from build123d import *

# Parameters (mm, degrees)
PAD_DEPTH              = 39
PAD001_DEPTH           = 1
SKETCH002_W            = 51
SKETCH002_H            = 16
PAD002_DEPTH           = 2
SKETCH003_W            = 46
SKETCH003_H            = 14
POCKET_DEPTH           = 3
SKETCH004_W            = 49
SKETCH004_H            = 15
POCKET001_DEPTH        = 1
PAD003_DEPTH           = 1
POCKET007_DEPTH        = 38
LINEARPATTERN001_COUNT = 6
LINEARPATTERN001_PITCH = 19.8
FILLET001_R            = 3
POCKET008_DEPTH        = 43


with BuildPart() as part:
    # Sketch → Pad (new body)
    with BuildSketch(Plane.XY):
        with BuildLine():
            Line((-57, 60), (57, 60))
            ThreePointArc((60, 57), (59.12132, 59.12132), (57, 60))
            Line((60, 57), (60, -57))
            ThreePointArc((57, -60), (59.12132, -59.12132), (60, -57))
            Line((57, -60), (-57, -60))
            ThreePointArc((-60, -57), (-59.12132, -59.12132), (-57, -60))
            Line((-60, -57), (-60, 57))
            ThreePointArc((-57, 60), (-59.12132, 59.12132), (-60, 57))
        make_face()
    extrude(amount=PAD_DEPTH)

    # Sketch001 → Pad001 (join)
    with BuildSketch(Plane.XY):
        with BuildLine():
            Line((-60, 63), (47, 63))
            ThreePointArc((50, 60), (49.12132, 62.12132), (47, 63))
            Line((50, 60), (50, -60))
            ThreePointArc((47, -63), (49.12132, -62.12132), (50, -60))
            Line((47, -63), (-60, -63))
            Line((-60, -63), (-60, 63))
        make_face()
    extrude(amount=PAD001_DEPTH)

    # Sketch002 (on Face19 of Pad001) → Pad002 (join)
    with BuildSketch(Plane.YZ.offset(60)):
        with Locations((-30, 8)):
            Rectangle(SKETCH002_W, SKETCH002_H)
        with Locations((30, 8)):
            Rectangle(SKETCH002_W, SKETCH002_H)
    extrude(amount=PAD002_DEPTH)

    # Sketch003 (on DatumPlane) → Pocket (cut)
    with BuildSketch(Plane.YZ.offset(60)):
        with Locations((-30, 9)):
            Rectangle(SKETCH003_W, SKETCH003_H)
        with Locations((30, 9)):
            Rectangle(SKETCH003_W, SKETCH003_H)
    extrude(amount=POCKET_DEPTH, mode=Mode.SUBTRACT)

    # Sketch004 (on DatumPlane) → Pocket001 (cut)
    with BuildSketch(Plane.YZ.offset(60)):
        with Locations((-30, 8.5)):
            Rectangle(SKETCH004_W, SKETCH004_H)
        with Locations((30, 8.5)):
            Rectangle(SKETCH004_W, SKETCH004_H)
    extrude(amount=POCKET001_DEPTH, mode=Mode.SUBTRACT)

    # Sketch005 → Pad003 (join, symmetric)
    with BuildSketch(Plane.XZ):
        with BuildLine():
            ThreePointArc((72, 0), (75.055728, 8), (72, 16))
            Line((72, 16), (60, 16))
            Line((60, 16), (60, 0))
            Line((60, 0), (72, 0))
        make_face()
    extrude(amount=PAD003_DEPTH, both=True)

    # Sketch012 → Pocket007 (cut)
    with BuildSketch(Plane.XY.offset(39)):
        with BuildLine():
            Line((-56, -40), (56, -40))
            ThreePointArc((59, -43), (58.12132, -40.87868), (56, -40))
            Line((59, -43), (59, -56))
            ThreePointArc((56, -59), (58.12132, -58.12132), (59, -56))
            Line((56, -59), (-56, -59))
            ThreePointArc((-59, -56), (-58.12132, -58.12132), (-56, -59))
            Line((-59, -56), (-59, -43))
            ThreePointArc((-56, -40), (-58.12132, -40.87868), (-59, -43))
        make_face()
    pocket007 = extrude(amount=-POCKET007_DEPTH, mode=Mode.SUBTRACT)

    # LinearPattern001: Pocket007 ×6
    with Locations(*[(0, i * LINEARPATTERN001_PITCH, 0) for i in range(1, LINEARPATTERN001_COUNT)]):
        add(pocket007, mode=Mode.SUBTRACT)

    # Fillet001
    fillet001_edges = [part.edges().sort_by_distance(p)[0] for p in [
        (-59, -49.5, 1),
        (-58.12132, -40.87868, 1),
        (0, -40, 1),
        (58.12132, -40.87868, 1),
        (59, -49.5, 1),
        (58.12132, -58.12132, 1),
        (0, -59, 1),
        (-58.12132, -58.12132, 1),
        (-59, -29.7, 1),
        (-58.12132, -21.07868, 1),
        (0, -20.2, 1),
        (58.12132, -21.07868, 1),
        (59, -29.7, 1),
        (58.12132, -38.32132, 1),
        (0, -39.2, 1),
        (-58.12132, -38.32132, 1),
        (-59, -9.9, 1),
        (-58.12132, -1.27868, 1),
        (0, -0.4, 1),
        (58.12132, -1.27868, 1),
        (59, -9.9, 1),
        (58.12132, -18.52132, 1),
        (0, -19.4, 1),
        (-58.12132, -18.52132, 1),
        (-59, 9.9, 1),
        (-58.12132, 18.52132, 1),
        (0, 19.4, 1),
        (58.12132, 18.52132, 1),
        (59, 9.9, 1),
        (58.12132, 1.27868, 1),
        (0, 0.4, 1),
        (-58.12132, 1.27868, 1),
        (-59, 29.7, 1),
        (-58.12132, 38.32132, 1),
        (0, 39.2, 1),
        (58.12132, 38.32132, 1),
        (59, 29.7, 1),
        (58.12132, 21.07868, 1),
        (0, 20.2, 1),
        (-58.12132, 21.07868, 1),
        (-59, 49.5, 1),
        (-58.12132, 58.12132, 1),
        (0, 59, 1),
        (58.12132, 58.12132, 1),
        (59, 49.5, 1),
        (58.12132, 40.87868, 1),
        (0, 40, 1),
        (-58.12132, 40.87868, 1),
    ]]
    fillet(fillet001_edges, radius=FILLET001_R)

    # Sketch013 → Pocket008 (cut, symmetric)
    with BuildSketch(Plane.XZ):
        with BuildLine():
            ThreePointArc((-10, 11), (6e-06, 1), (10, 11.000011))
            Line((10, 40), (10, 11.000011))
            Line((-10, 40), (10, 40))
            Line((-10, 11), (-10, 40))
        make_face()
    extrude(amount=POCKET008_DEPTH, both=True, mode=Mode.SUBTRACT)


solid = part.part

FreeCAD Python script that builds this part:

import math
import FreeCAD as App
import Part
import Sketcher
from FreeCAD import Vector
Q = App.Units.Quantity


def edges_at(feature, points):
    """Names of the edges that pass closest to the given points."""
    edges = feature.Shape.Edges
    near = lambda p: min(range(len(edges)), key=lambda i: edges[i].distToShape(Part.Vertex(*p))[0])
    return sorted({f"Edge{near(p) + 1}" for p in points})

doc = App.newDocument("Part")
body = doc.addObject("PartDesign::Body", "Body")

# Sketch on XY plane
sketch1 = body.newObject("Sketcher::SketchObject", "Sketch")
sketch1.AttachmentSupport = (doc.getObject("XY_Plane"), [""])
sketch1.MapMode = "FlatFace"
sketch1.addGeometry([
    Part.LineSegment(Vector(57, 60, 0), Vector(-57, 60, 0)),  # 0
    Part.ArcOfCircle(Part.Circle(Vector(-57, 57, 0), Vector(0, 0, 1), 3), math.radians(90), math.radians(180)),  # 1
    Part.LineSegment(Vector(-60, 57, 0), Vector(-60, -57, 0)),  # 2
    Part.ArcOfCircle(Part.Circle(Vector(-57, -57, 0), Vector(0, 0, 1), 3), math.radians(-180), math.radians(-90)),  # 3
    Part.LineSegment(Vector(-57, -60, 0), Vector(57, -60, 0)),  # 4
    Part.ArcOfCircle(Part.Circle(Vector(57, -57, 0), Vector(0, 0, 1), 3), math.radians(-90), math.radians(0)),  # 5
    Part.LineSegment(Vector(60, -57, 0), Vector(60, 57, 0)),  # 6
    Part.ArcOfCircle(Part.Circle(Vector(57, 57, 0), Vector(0, 0, 1), 3), math.radians(0), math.radians(90)),  # 7
], False)
sketch1.addConstraint([
    Sketcher.Constraint("Tangent", 0, 2, 1, 1),
    Sketcher.Constraint("Tangent", 1, 2, 2, 1),
    Sketcher.Constraint("Tangent", 2, 2, 3, 1),
    Sketcher.Constraint("Tangent", 3, 2, 4, 1),
    Sketcher.Constraint("Tangent", 4, 2, 5, 1),
    Sketcher.Constraint("Tangent", 5, 2, 6, 1),
    Sketcher.Constraint("Tangent", 6, 2, 7, 1),
    Sketcher.Constraint("Tangent", 7, 2, 0, 1),
    Sketcher.Constraint("Horizontal", 0),
    Sketcher.Constraint("Vertical", 2),
    Sketcher.Constraint("Horizontal", 4),
    Sketcher.Constraint("Vertical", 6),
    Sketcher.Constraint("Equal", 1, 3),
    Sketcher.Constraint("Equal", 3, 5),
    Sketcher.Constraint("Equal", 5, 7),
    Sketcher.Constraint("Symmetric", 1, 3, 5, 3, -1, 1),
    Sketcher.Constraint("Equal", 4, 2),
    Sketcher.Constraint("Radius", 1, Q("3.000001 mm")),
    Sketcher.Constraint("DistanceX", 0, 2, 0, 1, Q("114 mm")),
])
pad1 = body.newObject("PartDesign::Pad", "Pad")
pad1.Profile = sketch1
pad1.Length = 39

# Sketch on XY plane
sketch2 = body.newObject("Sketcher::SketchObject", "Sketch001")
sketch2.AttachmentSupport = (doc.getObject("XY_Plane"), [""])
sketch2.MapMode = "FlatFace"
sketch2.addGeometry([
    Part.LineSegment(Vector(47, 63, 0), Vector(-60, 63, 0)),  # 0
    Part.LineSegment(Vector(-60, 63, 0), Vector(-60, -63, 0)),  # 1
    Part.LineSegment(Vector(-60, -63, 0), Vector(47, -63, 0)),  # 2
    Part.ArcOfCircle(Part.Circle(Vector(47, -60, 0), Vector(0, 0, 1), 3), math.radians(-90), math.radians(0)),  # 3
    Part.LineSegment(Vector(50, -60, 0), Vector(50, 60, 0)),  # 4
    Part.ArcOfCircle(Part.Circle(Vector(47, 60, 0), Vector(0, 0, 1), 3), math.radians(0), math.radians(90)),  # 5
], False)
sketch2.addConstraint([
    Sketcher.Constraint("Coincident", 0, 2, 1, 1),
    Sketcher.Constraint("Coincident", 1, 2, 2, 1),
    Sketcher.Constraint("Tangent", 2, 2, 3, 1),
    Sketcher.Constraint("Tangent", 3, 2, 4, 1),
    Sketcher.Constraint("Tangent", 4, 2, 5, 1),
    Sketcher.Constraint("Tangent", 5, 2, 0, 1),
    Sketcher.Constraint("Horizontal", 0),
    Sketcher.Constraint("Vertical", 1),
    Sketcher.Constraint("Horizontal", 2),
    Sketcher.Constraint("Vertical", 4),
    Sketcher.Constraint("Equal", 3, 5),
    Sketcher.Constraint("Radius", 3, Q("3.000001 mm")),
    Sketcher.Constraint("DistanceX", 0, 2, 0, 1, Q("107 mm")),
    Sketcher.Constraint("DistanceY", 1, 2, 1, 1, Q("126 mm")),
    Sketcher.Constraint("DistanceX", -1, 1, 3, 3, Q("46.999999 mm")),
    Sketcher.Constraint("DistanceY", 3, 3, -1, 1, Q("59.999999 mm")),
])
pad2 = body.newObject("PartDesign::Pad", "Pad001")
pad2.Profile = sketch2
pad2.Length = 1

# Sketch on YZ plane
sketch3 = body.newObject("Sketcher::SketchObject", "Sketch002")
sketch3.AttachmentSupport = (doc.getObject("YZ_Plane"), [""])
sketch3.MapMode = "FlatFace"
sketch3.AttachmentOffset = App.Placement(Vector(0, 0, 60), App.Rotation())
sketch3.addGeometry([
    Part.LineSegment(Vector(-56, 16, 0), Vector(-56, 0, 0)),  # 0
    Part.LineSegment(Vector(-56, 0, 0), Vector(-4, 0, 0)),  # 1
    Part.LineSegment(Vector(-4, 0, 0), Vector(-4, 16, 0)),  # 2
    Part.LineSegment(Vector(-4, 16, 0), Vector(-56, 16, 0)),  # 3
    Part.LineSegment(Vector(4, 16, 0), Vector(4, 0, 0)),  # 4
    Part.LineSegment(Vector(4, 0, 0), Vector(56, 0, 0)),  # 5
    Part.LineSegment(Vector(56, 0, 0), Vector(56, 16, 0)),  # 6
    Part.LineSegment(Vector(56, 16, 0), Vector(4, 16, 0)),  # 7
], False)
sketch3.addConstraint([
    Sketcher.Constraint("Coincident", 0, 2, 1, 1),
    Sketcher.Constraint("Coincident", 1, 2, 2, 1),
    Sketcher.Constraint("Coincident", 2, 2, 3, 1),
    Sketcher.Constraint("Coincident", 3, 2, 0, 1),
    Sketcher.Constraint("Coincident", 4, 2, 5, 1),
    Sketcher.Constraint("Coincident", 5, 2, 6, 1),
    Sketcher.Constraint("Coincident", 6, 2, 7, 1),
    Sketcher.Constraint("Coincident", 7, 2, 4, 1),
    Sketcher.Constraint("Vertical", 0),
    Sketcher.Constraint("Horizontal", 1),
    Sketcher.Constraint("Vertical", 2),
    Sketcher.Constraint("Horizontal", 3),
    Sketcher.Constraint("Vertical", 4),
    Sketcher.Constraint("Horizontal", 5),
    Sketcher.Constraint("Vertical", 6),
    Sketcher.Constraint("Horizontal", 7),
    Sketcher.Constraint("Symmetric", 1, 2, 4, 2, -1, 1),
    Sketcher.Constraint("Symmetric", 0, 2, 5, 2, -2),
    Sketcher.Constraint("Horizontal", 3, 2, 6, 2),
    Sketcher.Constraint("DistanceX", 1, 1, 1, 2, Q("51 mm")),
    Sketcher.Constraint("DistanceY", 0, 2, 0, 1, Q("16 mm")),
    Sketcher.Constraint("DistanceX", 1, 2, 4, 2, Q("9 mm")),
])
pad3 = body.newObject("PartDesign::Pad", "Pad002")
pad3.Profile = sketch3
pad3.Length = 2

# Sketch on YZ plane
sketch4 = body.newObject("Sketcher::SketchObject", "Sketch003")
sketch4.AttachmentSupport = (doc.getObject("YZ_Plane"), [""])
sketch4.MapMode = "FlatFace"
sketch4.AttachmentOffset = App.Placement(Vector(0, 0, 60), App.Rotation())
sketch4.addGeometry([
    Part.LineSegment(Vector(-53, 16, 0), Vector(-53, 2, 0)),  # 0
    Part.LineSegment(Vector(-53, 2, 0), Vector(-7, 2, 0)),  # 1
    Part.LineSegment(Vector(-7, 2, 0), Vector(-7, 16, 0)),  # 2
    Part.LineSegment(Vector(-7, 16, 0), Vector(-53, 16, 0)),  # 3
    Part.LineSegment(Vector(7, 16, 0), Vector(7, 2, 0)),  # 4
    Part.LineSegment(Vector(7, 2, 0), Vector(53, 2, 0)),  # 5
    Part.LineSegment(Vector(53, 2, 0), Vector(53, 16, 0)),  # 6
    Part.LineSegment(Vector(53, 16, 0), Vector(7, 16, 0)),  # 7
], False)
sketch4.addConstraint([
    Sketcher.Constraint("Coincident", 0, 2, 1, 1),
    Sketcher.Constraint("Coincident", 1, 2, 2, 1),
    Sketcher.Constraint("Coincident", 2, 2, 3, 1),
    Sketcher.Constraint("Coincident", 3, 2, 0, 1),
    Sketcher.Constraint("Coincident", 4, 2, 5, 1),
    Sketcher.Constraint("Coincident", 5, 2, 6, 1),
    Sketcher.Constraint("Coincident", 6, 2, 7, 1),
    Sketcher.Constraint("Coincident", 7, 2, 4, 1),
    Sketcher.Constraint("Vertical", 0),
    Sketcher.Constraint("Horizontal", 1),
    Sketcher.Constraint("Vertical", 2),
    Sketcher.Constraint("Horizontal", 3),
    Sketcher.Constraint("Vertical", 4),
    Sketcher.Constraint("Horizontal", 5),
    Sketcher.Constraint("Vertical", 6),
    Sketcher.Constraint("Horizontal", 7),
    Sketcher.Constraint("Symmetric", 1, 2, 4, 2, -2),
    Sketcher.Constraint("Symmetric", 3, 2, 6, 2, -2),
    Sketcher.Constraint("DistanceX", 1, 1, 1, 2, Q("46 mm")),
    Sketcher.Constraint("DistanceY", 0, 2, 0, 1, Q("14 mm")),
    Sketcher.Constraint("DistanceX", 0, 2, -1, 1, Q("53 mm")),
    Sketcher.Constraint("DistanceY", -1, 1, 0, 2, Q("2 mm")),
])
pocket1 = body.newObject("PartDesign::Pocket", "Pocket")
pocket1.Profile = sketch4
pocket1.Length = 3
pocket1.Reversed = True

# Sketch on YZ plane
sketch5 = body.newObject("Sketcher::SketchObject", "Sketch004")
sketch5.AttachmentSupport = (doc.getObject("YZ_Plane"), [""])
sketch5.MapMode = "FlatFace"
sketch5.AttachmentOffset = App.Placement(Vector(0, 0, 60), App.Rotation())
sketch5.addGeometry([
    Part.LineSegment(Vector(-54, 16, 0), Vector(-54, 1, 0)),  # 0
    Part.LineSegment(Vector(-54, 1, 0), Vector(-6, 1, 0)),  # 1
    Part.LineSegment(Vector(-6, 1, 0), Vector(-6, 16, 0)),  # 2
    Part.LineSegment(Vector(-6, 16, 0), Vector(-54, 16, 0)),  # 3
    Part.LineSegment(Vector(6, 16, 0), Vector(6, 1, 0)),  # 4
    Part.LineSegment(Vector(6, 1, 0), Vector(54, 1, 0)),  # 5
    Part.LineSegment(Vector(54, 1, 0), Vector(54, 16, 0)),  # 6
    Part.LineSegment(Vector(54, 16, 0), Vector(6, 16, 0)),  # 7
], False)
sketch5.addConstraint([
    Sketcher.Constraint("Coincident", 0, 2, 1, 1),
    Sketcher.Constraint("Coincident", 1, 2, 2, 1),
    Sketcher.Constraint("Coincident", 2, 2, 3, 1),
    Sketcher.Constraint("Coincident", 3, 2, 0, 1),
    Sketcher.Constraint("Coincident", 4, 2, 5, 1),
    Sketcher.Constraint("Coincident", 5, 2, 6, 1),
    Sketcher.Constraint("Coincident", 6, 2, 7, 1),
    Sketcher.Constraint("Coincident", 7, 2, 4, 1),
    Sketcher.Constraint("Vertical", 0),
    Sketcher.Constraint("Horizontal", 1),
    Sketcher.Constraint("Vertical", 2),
    Sketcher.Constraint("Horizontal", 3),
    Sketcher.Constraint("Vertical", 4),
    Sketcher.Constraint("Horizontal", 5),
    Sketcher.Constraint("Vertical", 6),
    Sketcher.Constraint("Horizontal", 7),
    Sketcher.Constraint("Symmetric", 1, 2, 4, 2, -2),
    Sketcher.Constraint("Symmetric", 3, 2, 6, 2, -2),
    Sketcher.Constraint("DistanceX", 1, 1, 1, 2, Q("49 mm")),
    Sketcher.Constraint("DistanceY", 0, 2, 0, 1, Q("15 mm")),
    Sketcher.Constraint("DistanceY", -1, 1, 0, 2, Q("1 mm")),
    Sketcher.Constraint("DistanceX", 1, 2, 4, 2, Q("11 mm")),
])
pocket2 = body.newObject("PartDesign::Pocket", "Pocket001")
pocket2.Profile = sketch5
pocket2.Length = 1
pocket2.Reversed = True

# Sketch on XZ plane
sketch6 = body.newObject("Sketcher::SketchObject", "Sketch005")
sketch6.AttachmentSupport = (doc.getObject("XZ_Plane"), [""])
sketch6.MapMode = "FlatFace"
sketch6.addGeometry([
    Part.ArcOfCircle(Part.Circle(Vector(63, 8, 0), Vector(0, 0, 1), 12), math.radians(-42), math.radians(42)),
    Part.LineSegment(Vector(72, 16, 0), Vector(60, 16, 0)),
    Part.LineSegment(Vector(60, 16, 0), Vector(60, 0, 0)),
    Part.LineSegment(Vector(60, 0, 0), Vector(72, 0, 0)),
], False)
sketch6.addConstraint([
    Sketcher.Constraint("Coincident", 0, 2, 1, 1),
    Sketcher.Constraint("Coincident", 1, 2, 2, 1),
    Sketcher.Constraint("Coincident", 2, 2, 3, 1),
    Sketcher.Constraint("Coincident", 3, 2, 0, 1),
    Sketcher.Constraint("Horizontal", 1),
    Sketcher.Constraint("Vertical", 2),
    Sketcher.Constraint("Horizontal", 3),
    Sketcher.Constraint("PointOnObject", 2, 2, -1),
    Sketcher.Constraint("Vertical", 0, 2, 3, 2),
    Sketcher.Constraint("Radius", 0, Q("12 mm")),
    Sketcher.Constraint("DistanceX", 1, 2, 1, 1, Q("12 mm")),
    Sketcher.Constraint("DistanceY", 2, 2, 2, 1, Q("16 mm")),
    Sketcher.Constraint("DistanceX", -1, 1, 0, 2, Q("72 mm")),
])
pad4 = body.newObject("PartDesign::Pad", "Pad003")
pad4.Profile = sketch6
pad4.Length = 2
pad4.Midplane = True

# Sketch on XY plane
sketch7 = body.newObject("Sketcher::SketchObject", "Sketch006")
sketch7.AttachmentSupport = (doc.getObject("XY_Plane"), [""])
sketch7.MapMode = "FlatFace"
sketch7.AttachmentOffset = App.Placement(Vector(0, 0, 39), App.Rotation())
sketch7.addGeometry([
    Part.LineSegment(Vector(56, -40, 0), Vector(-56, -40, 0)),  # 0
    Part.ArcOfCircle(Part.Circle(Vector(-56, -43, 0), Vector(0, 0, 1), 3), math.radians(90), math.radians(180)),  # 1
    Part.LineSegment(Vector(-59, -43, 0), Vector(-59, -56, 0)),  # 2
    Part.ArcOfCircle(Part.Circle(Vector(-56, -56, 0), Vector(0, 0, 1), 3), math.radians(-180), math.radians(-90)),  # 3
    Part.LineSegment(Vector(-56, -59, 0), Vector(56, -59, 0)),  # 4
    Part.ArcOfCircle(Part.Circle(Vector(56, -56, 0), Vector(0, 0, 1), 3), math.radians(-90), math.radians(0)),  # 5
    Part.LineSegment(Vector(59, -56, 0), Vector(59, -43, 0)),  # 6
    Part.ArcOfCircle(Part.Circle(Vector(56, -43, 0), Vector(0, 0, 1), 3), math.radians(0), math.radians(90)),  # 7
], False)
sketch7.addConstraint([
    Sketcher.Constraint("Tangent", 0, 2, 1, 1),
    Sketcher.Constraint("Tangent", 1, 2, 2, 1),
    Sketcher.Constraint("Tangent", 2, 2, 3, 1),
    Sketcher.Constraint("Tangent", 3, 2, 4, 1),
    Sketcher.Constraint("Tangent", 4, 2, 5, 1),
    Sketcher.Constraint("Tangent", 5, 2, 6, 1),
    Sketcher.Constraint("Tangent", 6, 2, 7, 1),
    Sketcher.Constraint("Tangent", 7, 2, 0, 1),
    Sketcher.Constraint("Horizontal", 0),
    Sketcher.Constraint("Vertical", 2),
    Sketcher.Constraint("Horizontal", 4),
    Sketcher.Constraint("Vertical", 6),
    Sketcher.Constraint("Equal", 1, 3),
    Sketcher.Constraint("Equal", 3, 5),
    Sketcher.Constraint("Equal", 5, 7),
    Sketcher.Constraint("Radius", 1, Q("3.000001 mm")),
    Sketcher.Constraint("DistanceX", 0, 2, 0, 1, Q("112 mm")),
    Sketcher.Constraint("DistanceY", 2, 2, 2, 1, Q("13 mm")),
    Sketcher.Constraint("DistanceX", 1, 3, -1, 1, Q("55.999999 mm")),
    Sketcher.Constraint("DistanceY", 1, 3, -1, 1, Q("43.000001 mm")),
])
pocket3 = body.newObject("PartDesign::Pocket", "Pocket002")
pocket3.Profile = sketch7
pocket3.Length = 38
doc.recompute()

linearpattern = body.newObject("PartDesign::LinearPattern", "LinearPattern")
linearpattern.Originals = [pocket3]
linearpattern.Direction = (doc.getObject("Y_Axis"), [""])
linearpattern.Mode = "offset"
linearpattern.Offset = 19.8
linearpattern.Occurrences = 6
body.Tip = linearpattern
doc.recompute()

fillet = body.newObject("PartDesign::Fillet", "Fillet")
fillet.Base = (linearpattern, edges_at(linearpattern, [
    (-59, -49.5, 1),
    (-58.121, -40.879, 1),
    (0, -40, 1),
    (58.121, -40.879, 1),
    (59, -49.5, 1),
    (58.121, -58.121, 1),
    (0, -59, 1),
    (-58.121, -58.121, 1),
    (-59, -29.7, 1),
    (-58.121, -21.079, 1),
    (0, -20.2, 1),
    (58.121, -21.079, 1),
    (59, -29.7, 1),
    (58.121, -38.321, 1),
    (0, -39.2, 1),
    (-58.121, -38.321, 1),
    (-59, -9.9, 1),
    (-58.121, -1.279, 1),
    (0, -0.4, 1),
    (58.121, -1.279, 1),
    (59, -9.9, 1),
    (58.121, -18.521, 1),
    (0, -19.4, 1),
    (-58.121, -18.521, 1),
    (-59, 9.9, 1),
    (-58.121, 18.521, 1),
    (0, 19.4, 1),
    (58.121, 18.521, 1),
    (59, 9.9, 1),
    (58.121, 1.279, 1),
    (0, 0.4, 1),
    (-58.121, 1.279, 1),
    (-59, 29.7, 1),
    (-58.121, 38.321, 1),
    (0, 39.2, 1),
    (58.121, 38.321, 1),
    (59, 29.7, 1),
    (58.121, 21.079, 1),
    (0, 20.2, 1),
    (-58.121, 21.079, 1),
    (-59, 49.5, 1),
    (-58.121, 58.121, 1),
    (0, 59, 1),
    (58.121, 58.121, 1),
    (59, 49.5, 1),
    (58.121, 40.879, 1),
    (0, 40, 1),
    (-58.121, 40.879, 1),
]))
fillet.Radius = 3

# Sketch on XZ plane
sketch8 = body.newObject("Sketcher::SketchObject", "Sketch007")
sketch8.AttachmentSupport = (doc.getObject("XZ_Plane"), [""])
sketch8.MapMode = "FlatFace"
sketch8.addGeometry([
    Part.ArcOfCircle(Part.Circle(Vector(0, 11, 0), Vector(0, 0, 1), 10), math.radians(180), math.radians(360)),
    Part.LineSegment(Vector(10, 11, 0), Vector(10, 40, 0)),
    Part.LineSegment(Vector(10, 40, 0), Vector(-10, 40, 0)),
    Part.LineSegment(Vector(-10, 40, 0), Vector(-10, 11, 0)),
], False)
sketch8.addConstraint([
    Sketcher.Constraint("Tangent", 0, 2, 1, 1),
    Sketcher.Constraint("Coincident", 1, 2, 2, 1),
    Sketcher.Constraint("Coincident", 2, 2, 3, 1),
    Sketcher.Constraint("Tangent", 3, 2, 0, 1),
    Sketcher.Constraint("Vertical", 1),
    Sketcher.Constraint("Horizontal", 2),
    Sketcher.Constraint("Vertical", 3),
    Sketcher.Constraint("PointOnObject", 0, 3, -2),
    Sketcher.Constraint("Radius", 0, Q("10 mm")),
    Sketcher.Constraint("DistanceY", 3, 2, 3, 1, Q("29 mm")),
    Sketcher.Constraint("DistanceY", -1, 1, 0, 3, Q("11 mm")),
])
pocket4 = body.newObject("PartDesign::Pocket", "Pocket003")
pocket4.Profile = sketch8
pocket4.Length = 86
pocket4.Midplane = True

doc.recompute()
